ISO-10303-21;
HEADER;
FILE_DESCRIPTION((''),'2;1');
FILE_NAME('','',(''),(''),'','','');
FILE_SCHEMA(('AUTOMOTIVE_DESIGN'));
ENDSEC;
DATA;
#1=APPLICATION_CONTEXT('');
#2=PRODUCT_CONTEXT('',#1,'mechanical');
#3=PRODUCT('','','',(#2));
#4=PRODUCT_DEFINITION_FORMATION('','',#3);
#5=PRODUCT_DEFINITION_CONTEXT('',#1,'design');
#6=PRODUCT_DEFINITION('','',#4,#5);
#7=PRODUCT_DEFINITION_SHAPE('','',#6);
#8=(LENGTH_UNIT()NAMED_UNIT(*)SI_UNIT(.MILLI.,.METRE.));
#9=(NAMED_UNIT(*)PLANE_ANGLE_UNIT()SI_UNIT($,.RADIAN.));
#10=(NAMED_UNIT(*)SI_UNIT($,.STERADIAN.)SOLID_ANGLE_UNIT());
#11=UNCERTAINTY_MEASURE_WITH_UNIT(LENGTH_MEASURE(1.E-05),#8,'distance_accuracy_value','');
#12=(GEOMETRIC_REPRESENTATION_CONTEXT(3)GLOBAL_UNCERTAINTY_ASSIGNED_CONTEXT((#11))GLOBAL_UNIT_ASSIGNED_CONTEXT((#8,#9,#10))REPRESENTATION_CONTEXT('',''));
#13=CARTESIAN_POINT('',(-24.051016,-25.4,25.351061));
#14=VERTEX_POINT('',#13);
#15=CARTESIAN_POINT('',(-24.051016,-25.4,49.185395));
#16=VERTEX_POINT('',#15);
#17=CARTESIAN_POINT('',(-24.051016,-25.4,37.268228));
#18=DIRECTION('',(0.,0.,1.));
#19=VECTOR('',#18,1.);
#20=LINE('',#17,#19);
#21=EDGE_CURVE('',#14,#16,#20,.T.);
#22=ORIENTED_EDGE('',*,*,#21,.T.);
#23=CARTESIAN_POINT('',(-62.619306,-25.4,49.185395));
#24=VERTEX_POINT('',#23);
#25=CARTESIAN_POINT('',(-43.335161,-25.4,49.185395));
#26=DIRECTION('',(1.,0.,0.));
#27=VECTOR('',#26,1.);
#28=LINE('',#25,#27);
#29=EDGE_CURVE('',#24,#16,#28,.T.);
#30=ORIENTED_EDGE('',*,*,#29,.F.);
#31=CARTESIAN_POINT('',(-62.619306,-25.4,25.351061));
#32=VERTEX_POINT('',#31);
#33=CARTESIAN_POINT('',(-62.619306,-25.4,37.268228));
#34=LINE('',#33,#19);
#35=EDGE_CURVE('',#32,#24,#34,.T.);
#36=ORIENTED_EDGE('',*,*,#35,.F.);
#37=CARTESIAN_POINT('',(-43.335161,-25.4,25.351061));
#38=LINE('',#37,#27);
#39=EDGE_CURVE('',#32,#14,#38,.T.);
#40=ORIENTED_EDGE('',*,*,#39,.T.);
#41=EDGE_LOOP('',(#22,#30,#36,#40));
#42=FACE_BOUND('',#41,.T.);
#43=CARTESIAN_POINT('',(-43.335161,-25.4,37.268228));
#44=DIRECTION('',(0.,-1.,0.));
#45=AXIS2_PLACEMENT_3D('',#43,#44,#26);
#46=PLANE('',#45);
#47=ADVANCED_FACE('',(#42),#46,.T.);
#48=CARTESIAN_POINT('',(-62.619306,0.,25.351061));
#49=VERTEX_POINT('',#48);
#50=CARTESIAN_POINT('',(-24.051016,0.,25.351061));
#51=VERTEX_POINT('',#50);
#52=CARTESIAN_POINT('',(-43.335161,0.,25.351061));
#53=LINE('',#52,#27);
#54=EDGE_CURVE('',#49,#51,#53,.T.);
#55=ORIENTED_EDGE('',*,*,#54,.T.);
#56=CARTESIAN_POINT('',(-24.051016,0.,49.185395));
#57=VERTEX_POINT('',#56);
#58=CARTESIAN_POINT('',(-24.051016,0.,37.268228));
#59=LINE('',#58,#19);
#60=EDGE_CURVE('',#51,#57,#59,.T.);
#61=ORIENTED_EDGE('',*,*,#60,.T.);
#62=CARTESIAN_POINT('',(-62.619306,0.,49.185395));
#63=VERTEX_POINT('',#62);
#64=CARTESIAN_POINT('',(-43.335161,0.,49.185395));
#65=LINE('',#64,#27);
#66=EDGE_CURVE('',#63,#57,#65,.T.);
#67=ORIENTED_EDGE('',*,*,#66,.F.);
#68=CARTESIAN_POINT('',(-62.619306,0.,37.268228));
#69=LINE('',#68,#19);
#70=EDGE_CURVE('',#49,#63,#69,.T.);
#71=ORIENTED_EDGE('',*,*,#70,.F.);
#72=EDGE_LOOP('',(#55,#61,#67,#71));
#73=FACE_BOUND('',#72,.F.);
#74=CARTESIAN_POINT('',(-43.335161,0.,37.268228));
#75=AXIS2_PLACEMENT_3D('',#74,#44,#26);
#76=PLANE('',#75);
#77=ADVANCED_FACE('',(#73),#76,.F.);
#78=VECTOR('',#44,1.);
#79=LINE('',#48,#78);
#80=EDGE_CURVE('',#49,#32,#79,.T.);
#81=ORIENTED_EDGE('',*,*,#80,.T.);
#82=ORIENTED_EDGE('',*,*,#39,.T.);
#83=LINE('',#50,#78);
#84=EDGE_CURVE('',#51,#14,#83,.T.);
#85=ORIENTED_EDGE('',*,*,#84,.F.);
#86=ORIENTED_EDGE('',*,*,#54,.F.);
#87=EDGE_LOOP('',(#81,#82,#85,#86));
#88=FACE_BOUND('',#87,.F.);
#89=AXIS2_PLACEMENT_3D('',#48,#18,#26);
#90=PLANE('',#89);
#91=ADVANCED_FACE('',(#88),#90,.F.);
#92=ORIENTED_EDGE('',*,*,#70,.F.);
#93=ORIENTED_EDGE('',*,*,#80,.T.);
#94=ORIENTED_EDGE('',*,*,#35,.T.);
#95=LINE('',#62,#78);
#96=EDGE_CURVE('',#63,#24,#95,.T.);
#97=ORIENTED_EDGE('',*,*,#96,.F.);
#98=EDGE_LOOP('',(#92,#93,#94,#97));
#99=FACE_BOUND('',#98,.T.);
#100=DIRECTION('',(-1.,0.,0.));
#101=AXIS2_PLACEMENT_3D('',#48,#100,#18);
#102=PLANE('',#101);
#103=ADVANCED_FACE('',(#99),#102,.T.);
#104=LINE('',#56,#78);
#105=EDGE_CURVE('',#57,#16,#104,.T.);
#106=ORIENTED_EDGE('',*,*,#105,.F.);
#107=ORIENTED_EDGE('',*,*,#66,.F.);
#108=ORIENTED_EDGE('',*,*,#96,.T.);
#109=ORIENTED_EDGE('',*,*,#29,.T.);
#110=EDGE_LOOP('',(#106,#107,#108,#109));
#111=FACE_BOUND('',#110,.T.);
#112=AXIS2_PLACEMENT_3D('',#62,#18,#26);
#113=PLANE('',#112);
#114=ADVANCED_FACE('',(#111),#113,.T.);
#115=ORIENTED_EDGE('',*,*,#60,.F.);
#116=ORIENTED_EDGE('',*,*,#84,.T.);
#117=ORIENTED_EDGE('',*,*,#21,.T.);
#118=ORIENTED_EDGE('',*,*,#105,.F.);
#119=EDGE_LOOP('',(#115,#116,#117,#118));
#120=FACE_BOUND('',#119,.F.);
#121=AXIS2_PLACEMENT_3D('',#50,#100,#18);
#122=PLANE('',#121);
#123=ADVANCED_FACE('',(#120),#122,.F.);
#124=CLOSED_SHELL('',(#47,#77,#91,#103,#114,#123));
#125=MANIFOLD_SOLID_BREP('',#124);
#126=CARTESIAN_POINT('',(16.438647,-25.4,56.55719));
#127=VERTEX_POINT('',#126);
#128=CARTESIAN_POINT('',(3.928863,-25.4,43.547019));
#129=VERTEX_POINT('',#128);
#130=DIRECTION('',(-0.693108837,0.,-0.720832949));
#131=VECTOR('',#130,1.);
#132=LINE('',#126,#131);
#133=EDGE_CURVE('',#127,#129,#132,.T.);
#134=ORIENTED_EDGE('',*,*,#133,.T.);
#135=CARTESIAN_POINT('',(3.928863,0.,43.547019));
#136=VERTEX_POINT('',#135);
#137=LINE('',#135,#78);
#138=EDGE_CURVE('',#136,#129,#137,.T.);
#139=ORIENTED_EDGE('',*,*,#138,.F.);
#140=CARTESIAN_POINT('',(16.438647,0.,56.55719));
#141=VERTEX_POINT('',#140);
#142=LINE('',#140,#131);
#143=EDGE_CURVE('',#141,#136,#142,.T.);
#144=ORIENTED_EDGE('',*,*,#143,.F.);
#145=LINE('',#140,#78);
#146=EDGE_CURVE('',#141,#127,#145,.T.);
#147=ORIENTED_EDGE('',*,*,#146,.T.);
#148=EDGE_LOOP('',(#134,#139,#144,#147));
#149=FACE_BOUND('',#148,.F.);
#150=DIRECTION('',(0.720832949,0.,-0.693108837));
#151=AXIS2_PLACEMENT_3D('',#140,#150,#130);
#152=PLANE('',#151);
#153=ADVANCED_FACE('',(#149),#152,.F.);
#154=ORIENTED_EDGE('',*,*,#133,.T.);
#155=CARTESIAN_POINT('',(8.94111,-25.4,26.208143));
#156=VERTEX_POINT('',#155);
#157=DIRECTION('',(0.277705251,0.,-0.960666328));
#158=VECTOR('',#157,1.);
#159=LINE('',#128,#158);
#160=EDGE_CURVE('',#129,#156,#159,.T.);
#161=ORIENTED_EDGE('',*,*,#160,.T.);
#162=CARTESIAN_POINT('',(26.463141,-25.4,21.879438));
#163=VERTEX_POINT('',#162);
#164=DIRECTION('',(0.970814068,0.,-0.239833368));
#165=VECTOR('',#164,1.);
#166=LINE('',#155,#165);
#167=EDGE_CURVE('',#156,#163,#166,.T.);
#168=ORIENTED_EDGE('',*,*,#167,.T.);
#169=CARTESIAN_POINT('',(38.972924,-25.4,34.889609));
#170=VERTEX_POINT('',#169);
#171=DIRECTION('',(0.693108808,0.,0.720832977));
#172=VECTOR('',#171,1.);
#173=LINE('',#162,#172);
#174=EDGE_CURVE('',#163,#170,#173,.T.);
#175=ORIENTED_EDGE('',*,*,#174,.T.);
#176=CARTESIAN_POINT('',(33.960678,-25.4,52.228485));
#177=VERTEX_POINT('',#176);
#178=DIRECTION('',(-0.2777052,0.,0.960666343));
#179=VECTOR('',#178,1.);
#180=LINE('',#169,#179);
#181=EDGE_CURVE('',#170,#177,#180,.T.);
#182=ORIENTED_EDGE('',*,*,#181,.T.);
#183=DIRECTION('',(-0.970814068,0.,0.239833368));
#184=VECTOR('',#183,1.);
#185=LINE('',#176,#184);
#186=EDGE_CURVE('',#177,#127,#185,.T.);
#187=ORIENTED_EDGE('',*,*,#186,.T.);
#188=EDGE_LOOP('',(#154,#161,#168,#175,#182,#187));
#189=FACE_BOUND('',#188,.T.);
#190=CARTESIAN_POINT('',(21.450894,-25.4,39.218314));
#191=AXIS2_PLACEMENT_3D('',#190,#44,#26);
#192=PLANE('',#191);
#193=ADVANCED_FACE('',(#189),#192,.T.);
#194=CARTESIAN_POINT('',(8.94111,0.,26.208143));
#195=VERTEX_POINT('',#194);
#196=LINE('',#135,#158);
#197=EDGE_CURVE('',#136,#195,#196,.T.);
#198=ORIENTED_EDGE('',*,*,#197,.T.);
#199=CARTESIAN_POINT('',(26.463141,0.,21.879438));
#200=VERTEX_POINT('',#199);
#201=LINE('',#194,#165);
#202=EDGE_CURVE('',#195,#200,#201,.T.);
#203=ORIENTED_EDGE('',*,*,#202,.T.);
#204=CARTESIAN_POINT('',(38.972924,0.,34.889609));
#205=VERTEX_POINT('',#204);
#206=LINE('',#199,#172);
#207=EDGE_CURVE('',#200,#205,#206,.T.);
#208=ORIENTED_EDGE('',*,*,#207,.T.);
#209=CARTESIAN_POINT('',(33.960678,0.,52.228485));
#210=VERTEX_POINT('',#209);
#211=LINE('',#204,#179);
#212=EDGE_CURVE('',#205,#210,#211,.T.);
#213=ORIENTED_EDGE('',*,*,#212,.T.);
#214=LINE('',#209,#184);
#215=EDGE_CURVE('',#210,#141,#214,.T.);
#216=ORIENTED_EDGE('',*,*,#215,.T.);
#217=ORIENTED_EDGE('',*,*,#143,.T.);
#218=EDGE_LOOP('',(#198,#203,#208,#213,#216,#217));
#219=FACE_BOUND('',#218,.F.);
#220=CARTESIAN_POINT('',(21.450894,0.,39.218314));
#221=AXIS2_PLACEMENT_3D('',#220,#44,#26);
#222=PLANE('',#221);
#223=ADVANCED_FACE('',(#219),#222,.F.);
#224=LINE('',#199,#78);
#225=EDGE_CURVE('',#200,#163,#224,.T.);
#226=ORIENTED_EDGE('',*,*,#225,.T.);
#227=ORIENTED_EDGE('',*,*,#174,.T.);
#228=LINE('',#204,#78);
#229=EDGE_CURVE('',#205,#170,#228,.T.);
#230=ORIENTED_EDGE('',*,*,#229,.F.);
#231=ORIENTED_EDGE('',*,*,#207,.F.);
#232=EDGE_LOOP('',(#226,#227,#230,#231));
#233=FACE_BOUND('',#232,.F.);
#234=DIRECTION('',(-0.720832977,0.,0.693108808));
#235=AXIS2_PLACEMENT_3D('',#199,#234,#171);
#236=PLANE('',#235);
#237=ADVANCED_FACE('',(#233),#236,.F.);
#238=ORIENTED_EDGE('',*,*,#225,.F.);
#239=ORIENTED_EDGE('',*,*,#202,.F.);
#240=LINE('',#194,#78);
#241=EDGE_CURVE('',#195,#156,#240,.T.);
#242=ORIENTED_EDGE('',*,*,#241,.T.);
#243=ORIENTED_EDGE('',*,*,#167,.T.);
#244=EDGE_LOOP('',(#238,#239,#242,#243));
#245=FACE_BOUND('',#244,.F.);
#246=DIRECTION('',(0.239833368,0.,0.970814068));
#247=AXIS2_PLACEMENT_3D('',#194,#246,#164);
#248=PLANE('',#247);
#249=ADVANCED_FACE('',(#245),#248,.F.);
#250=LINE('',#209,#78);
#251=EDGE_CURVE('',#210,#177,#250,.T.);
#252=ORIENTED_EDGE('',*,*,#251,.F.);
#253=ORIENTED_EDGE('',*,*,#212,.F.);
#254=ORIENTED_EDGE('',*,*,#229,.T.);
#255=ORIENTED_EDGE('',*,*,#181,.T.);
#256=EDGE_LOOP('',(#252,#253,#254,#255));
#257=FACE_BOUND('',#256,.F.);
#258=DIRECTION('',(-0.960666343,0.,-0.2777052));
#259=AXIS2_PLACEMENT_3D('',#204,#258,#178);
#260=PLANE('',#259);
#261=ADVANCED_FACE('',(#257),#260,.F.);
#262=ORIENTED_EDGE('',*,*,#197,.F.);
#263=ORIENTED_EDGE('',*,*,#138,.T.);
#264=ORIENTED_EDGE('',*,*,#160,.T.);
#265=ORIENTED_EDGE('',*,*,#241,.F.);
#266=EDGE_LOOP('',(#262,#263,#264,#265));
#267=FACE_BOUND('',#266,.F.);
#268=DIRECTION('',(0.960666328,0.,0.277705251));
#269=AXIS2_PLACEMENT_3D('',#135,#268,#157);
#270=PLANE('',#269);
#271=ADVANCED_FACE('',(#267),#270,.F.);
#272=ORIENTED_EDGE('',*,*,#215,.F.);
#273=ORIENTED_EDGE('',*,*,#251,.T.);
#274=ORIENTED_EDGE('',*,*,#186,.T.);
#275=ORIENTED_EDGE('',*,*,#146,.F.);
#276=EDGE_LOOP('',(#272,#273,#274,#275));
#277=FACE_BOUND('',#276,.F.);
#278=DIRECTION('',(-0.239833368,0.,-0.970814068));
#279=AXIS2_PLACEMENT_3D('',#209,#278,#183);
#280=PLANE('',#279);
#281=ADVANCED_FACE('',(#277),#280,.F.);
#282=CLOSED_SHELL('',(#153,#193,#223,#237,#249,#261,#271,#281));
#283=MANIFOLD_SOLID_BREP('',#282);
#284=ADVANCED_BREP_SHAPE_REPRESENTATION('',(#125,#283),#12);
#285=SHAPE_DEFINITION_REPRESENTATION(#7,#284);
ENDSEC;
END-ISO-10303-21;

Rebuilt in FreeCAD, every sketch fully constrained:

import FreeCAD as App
import Part
import Sketcher

V = App.Vector
Q = App.Units.Quantity

doc = App.newDocument("Part")
body = doc.addObject("PartDesign::Body", "Body")

# Sketch on XZ plane
sketch1 = body.newObject("Sketcher::SketchObject", "Sketch")
sketch1.AttachmentSupport = (doc.getObject("XZ_Plane"), [""])
sketch1.MapMode = "FlatFace"
sketch1.addGeometry([
    Part.LineSegment(V(-62.619306, 49.185395, 0), V(-62.619306, 25.351061, 0)),
    Part.LineSegment(V(-62.619306, 25.351061, 0), V(-24.051016, 25.351061, 0)),
    Part.LineSegment(V(-24.051016, 25.351061, 0), V(-24.051016, 49.185395, 0)),
    Part.LineSegment(V(-24.051016, 49.185395, 0), V(-62.619306, 49.185395, 0)),
], False)
sketch1.addConstraint([
    Sketcher.Constraint("Coincident", 0, 2, 1, 1),
    Sketcher.Constraint("Coincident", 1, 2, 2, 1),
    Sketcher.Constraint("Coincident", 2, 2, 3, 1),
    Sketcher.Constraint("Coincident", 3, 2, 0, 1),
    Sketcher.Constraint("Vertical", 0),
    Sketcher.Constraint("Horizontal", 1),
    Sketcher.Constraint("Vertical", 2),
    Sketcher.Constraint("Horizontal", 3),
    Sketcher.Constraint("DistanceX", 1, 1, 1, 2, 38.56829),
    Sketcher.Constraint("DistanceY", 0, 2, 0, 1, 23.834334),
    Sketcher.Constraint("DistanceY", -1, 1, 0, 2, 25.351061),
    Sketcher.Constraint("DistanceX", 0, 2, -1, 1, 62.619306),
])
pad1 = body.newObject("PartDesign::Pad", "Pad")
pad1.Profile = sketch1
pad1.Length = Q("1 in")
body2 = doc.addObject("PartDesign::Body", "Body001")

# Sketch on XZ plane
sketch2 = body2.newObject("Sketcher::SketchObject", "Sketch001")
sketch2.AttachmentSupport = (doc.getObject("XZ_Plane001"), [""])
sketch2.MapMode = "FlatFace"
sketch2.addGeometry([
    Part.LineSegment(V(26.463141, 21.879438, 0), V(38.972924, 34.889609, 0)),  # 0
    Part.LineSegment(V(38.972924, 34.889609, 0), V(33.960678, 52.228485, 0)),  # 1
    Part.LineSegment(V(33.960678, 52.228485, 0), V(16.438647, 56.55719, 0)),  # 2
    Part.LineSegment(V(16.438647, 56.55719, 0), V(3.928863, 43.547019, 0)),  # 3
    Part.LineSegment(V(3.928863, 43.547019, 0), V(8.94111, 26.208143, 0)),  # 4
    Part.LineSegment(V(8.94111, 26.208143, 0), V(26.463141, 21.879438, 0)),  # 5
], False)
sketch2.addConstraint([
    Sketcher.Constraint("Coincident", 0, 2, 1, 1),
    Sketcher.Constraint("Coincident", 1, 2, 2, 1),
    Sketcher.Constraint("Coincident", 2, 2, 3, 1),
    Sketcher.Constraint("Coincident", 3, 2, 4, 1),
    Sketcher.Constraint("Coincident", 4, 2, 5, 1),
    Sketcher.Constraint("Coincident", 5, 2, 0, 1),
    Sketcher.Constraint("Parallel", 0, 3),
    Sketcher.Constraint("Parallel", 1, 4),
    Sketcher.Constraint("Parallel", 2, 5),
    Sketcher.Constraint("Equal", 0, 1),
    Sketcher.Constraint("Equal", 1, 2),
    Sketcher.Constraint("Equal", 2, 3),
    Sketcher.Constraint("Distance", 0, 18.048801),
    Sketcher.Constraint("DistanceY", -1, 1, 0, 2, 34.889609),
    Sketcher.Constraint("DistanceY", -1, 1, 2, 2, 56.55719),
    Sketcher.Constraint("DistanceY", -1, 1, 3, 2, 43.547019),
    Sketcher.Constraint("DistanceX", -1, 1, 4, 2, 8.94111),
    Sketcher.Constraint("DistanceX", -1, 1, 5, 2, 26.463141),
])
pad2 = body2.newObject("PartDesign::Pad", "Pad001")
pad2.Profile = sketch2
pad2.Length = Q("1 in")

doc.recompute()
